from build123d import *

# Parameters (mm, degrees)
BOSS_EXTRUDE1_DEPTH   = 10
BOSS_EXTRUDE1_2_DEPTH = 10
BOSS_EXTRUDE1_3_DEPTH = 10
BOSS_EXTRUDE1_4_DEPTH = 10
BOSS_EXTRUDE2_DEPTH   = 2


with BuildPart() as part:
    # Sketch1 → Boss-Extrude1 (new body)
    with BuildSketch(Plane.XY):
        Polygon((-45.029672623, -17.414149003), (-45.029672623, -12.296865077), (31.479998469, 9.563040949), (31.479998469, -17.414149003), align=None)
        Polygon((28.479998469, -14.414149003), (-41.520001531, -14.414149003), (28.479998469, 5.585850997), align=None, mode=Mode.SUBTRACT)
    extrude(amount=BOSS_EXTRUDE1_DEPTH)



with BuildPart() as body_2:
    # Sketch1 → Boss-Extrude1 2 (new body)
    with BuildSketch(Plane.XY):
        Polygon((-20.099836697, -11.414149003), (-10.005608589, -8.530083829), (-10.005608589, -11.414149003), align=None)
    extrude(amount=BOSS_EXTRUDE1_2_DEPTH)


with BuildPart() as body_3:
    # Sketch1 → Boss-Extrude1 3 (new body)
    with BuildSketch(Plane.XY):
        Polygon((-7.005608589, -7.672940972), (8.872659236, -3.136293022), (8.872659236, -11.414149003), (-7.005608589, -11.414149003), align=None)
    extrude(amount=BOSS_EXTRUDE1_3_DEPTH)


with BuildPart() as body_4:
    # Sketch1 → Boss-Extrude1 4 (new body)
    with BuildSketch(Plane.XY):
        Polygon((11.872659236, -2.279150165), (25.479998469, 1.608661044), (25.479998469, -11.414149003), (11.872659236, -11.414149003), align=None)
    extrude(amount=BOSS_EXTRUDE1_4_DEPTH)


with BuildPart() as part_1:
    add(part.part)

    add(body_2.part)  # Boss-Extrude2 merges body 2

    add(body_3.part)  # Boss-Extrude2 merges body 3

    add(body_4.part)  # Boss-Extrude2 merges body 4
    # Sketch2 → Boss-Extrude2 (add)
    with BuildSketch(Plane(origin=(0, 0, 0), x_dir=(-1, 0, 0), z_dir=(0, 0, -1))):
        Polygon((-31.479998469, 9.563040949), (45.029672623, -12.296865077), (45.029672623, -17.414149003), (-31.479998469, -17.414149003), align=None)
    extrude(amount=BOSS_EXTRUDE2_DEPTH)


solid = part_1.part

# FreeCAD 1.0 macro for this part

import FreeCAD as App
import Part
import Sketcher
Q = App.Units.Quantity

doc = App.newDocument("Part")
body = doc.addObject("PartDesign::Body", "Body")

sketch1 = doc.addObject("Sketcher::SketchObject", "Sketch")
body.addObject(sketch1)
sketch1.AttachmentSupport = (doc.XY_Plane, [""])
sketch1.MapMode = "FlatFace"
sketch1.addGeometry([
    Part.LineSegment(App.Vector(-45.029673, -12.296865, 0), App.Vector(-45.029673, -17.414149, 0)),
    Part.LineSegment(App.Vector(-45.029673, -17.414149, 0), App.Vector(31.479998, -17.414149, 0)),
    Part.LineSegment(App.Vector(31.479998, -17.414149, 0), App.Vector(31.479998, 9.563041, 0)),
    Part.LineSegment(App.Vector(31.479998, 9.563041, 0), App.Vector(-45.029673, -12.296865, 0)),
    Part.LineSegment(App.Vector(28.479998, -14.414149, 0), App.Vector(-41.520002, -14.414149, 0)),
    Part.LineSegment(App.Vector(-41.520002, -14.414149, 0), App.Vector(28.479998, 5.585851, 0)),
    Part.LineSegment(App.Vector(28.479998, 5.585851, 0), App.Vector(28.479998, -14.414149, 0)),
], False)
sketch1.addConstraint([
    Sketcher.Constraint("Coincident", 0, 2, 1, 1),
    Sketcher.Constraint("Coincident", 1, 2, 2, 1),
    Sketcher.Constraint("Coincident", 2, 2, 3, 1),
    Sketcher.Constraint("Coincident", 3, 2, 0, 1),
    Sketcher.Constraint("Coincident", 4, 2, 5, 1),
    Sketcher.Constraint("Coincident", 5, 2, 6, 1),
    Sketcher.Constraint("Coincident", 6, 2, 4, 1),
    Sketcher.Constraint("Vertical", 0),
    Sketcher.Constraint("Horizontal", 1),
    Sketcher.Constraint("Vertical", 2),
    Sketcher.Constraint("Horizontal", 4),
    Sketcher.Constraint("Vertical", 6),
    Sketcher.Constraint("Parallel", 3, 5),
    Sketcher.Constraint("DistanceX", 4, 2, 4, 1, Q("70 mm")),
    Sketcher.Constraint("DistanceY", 6, 2, 6, 1, Q("20 mm")),
    Sketcher.Constraint("DistanceY", 0, 2, 4, 2, Q("3 mm")),
    Sketcher.Constraint("DistanceX", 4, 2, 1, 2, Q("73 mm")),
    Sketcher.Constraint("DistanceX", -1, 1, 1, 2, Q("31.479998 mm")),
    Sketcher.Constraint("DistanceX", 1, 1, 1, 2, Q("76.509671 mm")),
    Sketcher.Constraint("DistanceY", 2, 1, 2, 2, Q("26.97719 mm")),
    Sketcher.Constraint("DistanceY", 0, 2, -1, 1, Q("17.414149 mm")),
])
pad1 = doc.addObject("PartDesign::Pad", "Pad")
body.addObject(pad1)
pad1.Profile = sketch1
pad1.Length = 10
body2 = doc.addObject("PartDesign::Body", "Body001")

sketch2 = doc.addObject("Sketcher::SketchObject", "Sketch001")
body2.addObject(sketch2)
sketch2.AttachmentSupport = (doc.getObject("XY_Plane001"), [""])
sketch2.MapMode = "FlatFace"
sketch2.addGeometry([
    Part.LineSegment(App.Vector(-10.005609, -8.530084, 0), App.Vector(-20.099837, -11.414149, 0)),
    Part.LineSegment(App.Vector(-20.099837, -11.414149, 0), App.Vector(-10.005609, -11.414149, 0)),
    Part.LineSegment(App.Vector(-10.005609, -11.414149, 0), App.Vector(-10.005609, -8.530084, 0)),
], False)
sketch2.addConstraint([
    Sketcher.Constraint("Coincident", 0, 2, 1, 1),
    Sketcher.Constraint("Coincident", 1, 2, 2, 1),
    Sketcher.Constraint("Coincident", 2, 2, 0, 1),
    Sketcher.Constraint("Horizontal", 1),
    Sketcher.Constraint("Vertical", 2),
    Sketcher.Constraint("DistanceX", 1, 1, 1, 2, Q("10.094228 mm")),
    Sketcher.Constraint("DistanceY", 2, 1, 2, 2, Q("2.884065 mm")),
    Sketcher.Constraint("DistanceY", 0, 2, -1, 1, Q("11.414149 mm")),
    Sketcher.Constraint("DistanceX", 1, 2, -1, 1, Q("10.005609 mm")),
])
pad2 = doc.addObject("PartDesign::Pad", "Pad001")
body2.addObject(pad2)
pad2.Profile = sketch2
pad2.Length = 10
body3 = doc.addObject("PartDesign::Body", "Body002")

sketch3 = doc.addObject("Sketcher::SketchObject", "Sketch002")
body3.addObject(sketch3)
sketch3.AttachmentSupport = (doc.getObject("XY_Plane002"), [""])
sketch3.MapMode = "FlatFace"
sketch3.addGeometry([
    Part.LineSegment(App.Vector(8.872659, -3.136293, 0), App.Vector(-7.005609, -7.672941, 0)),
    Part.LineSegment(App.Vector(-7.005609, -7.672941, 0), App.Vector(-7.005609, -11.414149, 0)),
    Part.LineSegment(App.Vector(-7.005609, -11.414149, 0), App.Vector(8.872659, -11.414149, 0)),
    Part.LineSegment(App.Vector(8.872659, -11.414149, 0), App.Vector(8.872659, -3.136293, 0)),
], False)
sketch3.addConstraint([
    Sketcher.Constraint("Coincident", 0, 2, 1, 1),
    Sketcher.Constraint("Coincident", 1, 2, 2, 1),
    Sketcher.Constraint("Coincident", 2, 2, 3, 1),
    Sketcher.Constraint("Coincident", 3, 2, 0, 1),
    Sketcher.Constraint("Vertical", 1),
    Sketcher.Constraint("Horizontal", 2),
    Sketcher.Constraint("Vertical", 3),
    Sketcher.Constraint("DistanceY", 1, 2, 1, 1, Q("3.741208 mm")),
    Sketcher.Constraint("DistanceX", 2, 1, 2, 2, Q("15.878268 mm")),
    Sketcher.Constraint("DistanceY", 3, 1, 3, 2, Q("8.277856 mm")),
    Sketcher.Constraint("DistanceX", 0, 2, -1, 1, Q("7.005609 mm")),
    Sketcher.Constraint("DistanceY", 0, 2, -1, 1, Q("7.672941 mm")),
])
pad3 = doc.addObject("PartDesign::Pad", "Pad002")
body3.addObject(pad3)
pad3.Profile = sketch3
pad3.Length = 10
body4 = doc.addObject("PartDesign::Body", "Body003")

sketch4 = doc.addObject("Sketcher::SketchObject", "Sketch003")
body4.addObject(sketch4)
sketch4.AttachmentSupport = (doc.getObject("XY_Plane003"), [""])
sketch4.MapMode = "FlatFace"
sketch4.addGeometry([
    Part.LineSegment(App.Vector(25.479998, 1.608661, 0), App.Vector(11.872659, -2.27915, 0)),
    Part.LineSegment(App.Vector(11.872659, -2.27915, 0), App.Vector(11.872659, -11.414149, 0)),
    Part.LineSegment(App.Vector(11.872659, -11.414149, 0), App.Vector(25.479998, -11.414149, 0)),
    Part.LineSegment(App.Vector(25.479998, -11.414149, 0), App.Vector(25.479998, 1.608661, 0)),
], False)
sketch4.addConstraint([
    Sketcher.Constraint("Coincident", 0, 2, 1, 1),
    Sketcher.Constraint("Coincident", 1, 2, 2, 1),
    Sketcher.Constraint("Coincident", 2, 2, 3, 1),
    Sketcher.Constraint("Coincident", 3, 2, 0, 1),
    Sketcher.Constraint("Vertical", 1),
    Sketcher.Constraint("Horizontal", 2),
    Sketcher.Constraint("Vertical", 3),
    Sketcher.Constraint("DistanceY", 1, 2, 1, 1, Q("9.134999 mm")),
    Sketcher.Constraint("DistanceX", -1, 1, 2, 2, Q("25.479998 mm")),
    Sketcher.Constraint("DistanceX", 2, 1, 2, 2, Q("13.607339 mm")),
    Sketcher.Constraint("DistanceY", 3, 1, 3, 2, Q("13.02281 mm")),
    Sketcher.Constraint("DistanceY", 0, 2, -1, 1, Q("2.27915 mm")),
])
pad4 = doc.addObject("PartDesign::Pad", "Pad003")
body4.addObject(pad4)
pad4.Profile = sketch4
pad4.Length = 10
body.AllowCompound = True
doc.recompute()

boolean = doc.addObject("PartDesign::Boolean", "Boolean")
body.addObject(boolean)
boolean.Type = "Fuse"
boolean.addObjects([body2])
doc.recompute()

boolean2 = doc.addObject("PartDesign::Boolean", "Boolean001")
body.addObject(boolean2)
boolean2.Type = "Fuse"
boolean2.addObjects([body3])
doc.recompute()

boolean3 = doc.addObject("PartDesign::Boolean", "Boolean002")
body.addObject(boolean3)
boolean3.Type = "Fuse"
boolean3.addObjects([body4])

sketch5 = doc.addObject("Sketcher::SketchObject", "Sketch004")
body.addObject(sketch5)
sketch5.AttachmentSupport = (doc.XY_Plane, [""])
sketch5.MapMode = "FlatFace"
sketch5.addGeometry([
    Part.LineSegment(App.Vector(-45.029673, -12.296865, 0), App.Vector(31.479998, 9.563041, 0)),
    Part.LineSegment(App.Vector(31.479998, 9.563041, 0), App.Vector(31.479998, -17.414149, 0)),
    Part.LineSegment(App.Vector(31.479998, -17.414149, 0), App.Vector(-45.029673, -17.414149, 0)),
    Part.LineSegment(App.Vector(-45.029673, -17.414149, 0), App.Vector(-45.029673, -12.296865, 0)),
], False)
sketch5.addConstraint([
    Sketcher.Constraint("Coincident", 0, 2, 1, 1),
    Sketcher.Constraint("Coincident", 1, 2, 2, 1),
    Sketcher.Constraint("Coincident", 2, 2, 3, 1),
    Sketcher.Constraint("Coincident", 3, 2, 0, 1),
    Sketcher.Constraint("Vertical", 1),
    Sketcher.Constraint("Horizontal", 2),
    Sketcher.Constraint("Vertical", 3),
    Sketcher.Constraint("DistanceX", -1, 1, 0, 2, Q("31.479998 mm")),
    Sketcher.Constraint("DistanceX", 2, 2, 2, 1, Q("76.509671 mm")),
    Sketcher.Constraint("DistanceY", 1, 2, 1, 1, Q("26.97719 mm")),
    Sketcher.Constraint("Distance", 0, Q("79.571259 mm")),
    Sketcher.Constraint("DistanceY", -1, 1, 0, 2, Q("9.563041 mm")),
])
pad5 = doc.addObject("PartDesign::Pad", "Pad004")
body.addObject(pad5)
pad5.Profile = sketch5
pad5.Length = 2
pad5.Reversed = True

doc.recompute()
